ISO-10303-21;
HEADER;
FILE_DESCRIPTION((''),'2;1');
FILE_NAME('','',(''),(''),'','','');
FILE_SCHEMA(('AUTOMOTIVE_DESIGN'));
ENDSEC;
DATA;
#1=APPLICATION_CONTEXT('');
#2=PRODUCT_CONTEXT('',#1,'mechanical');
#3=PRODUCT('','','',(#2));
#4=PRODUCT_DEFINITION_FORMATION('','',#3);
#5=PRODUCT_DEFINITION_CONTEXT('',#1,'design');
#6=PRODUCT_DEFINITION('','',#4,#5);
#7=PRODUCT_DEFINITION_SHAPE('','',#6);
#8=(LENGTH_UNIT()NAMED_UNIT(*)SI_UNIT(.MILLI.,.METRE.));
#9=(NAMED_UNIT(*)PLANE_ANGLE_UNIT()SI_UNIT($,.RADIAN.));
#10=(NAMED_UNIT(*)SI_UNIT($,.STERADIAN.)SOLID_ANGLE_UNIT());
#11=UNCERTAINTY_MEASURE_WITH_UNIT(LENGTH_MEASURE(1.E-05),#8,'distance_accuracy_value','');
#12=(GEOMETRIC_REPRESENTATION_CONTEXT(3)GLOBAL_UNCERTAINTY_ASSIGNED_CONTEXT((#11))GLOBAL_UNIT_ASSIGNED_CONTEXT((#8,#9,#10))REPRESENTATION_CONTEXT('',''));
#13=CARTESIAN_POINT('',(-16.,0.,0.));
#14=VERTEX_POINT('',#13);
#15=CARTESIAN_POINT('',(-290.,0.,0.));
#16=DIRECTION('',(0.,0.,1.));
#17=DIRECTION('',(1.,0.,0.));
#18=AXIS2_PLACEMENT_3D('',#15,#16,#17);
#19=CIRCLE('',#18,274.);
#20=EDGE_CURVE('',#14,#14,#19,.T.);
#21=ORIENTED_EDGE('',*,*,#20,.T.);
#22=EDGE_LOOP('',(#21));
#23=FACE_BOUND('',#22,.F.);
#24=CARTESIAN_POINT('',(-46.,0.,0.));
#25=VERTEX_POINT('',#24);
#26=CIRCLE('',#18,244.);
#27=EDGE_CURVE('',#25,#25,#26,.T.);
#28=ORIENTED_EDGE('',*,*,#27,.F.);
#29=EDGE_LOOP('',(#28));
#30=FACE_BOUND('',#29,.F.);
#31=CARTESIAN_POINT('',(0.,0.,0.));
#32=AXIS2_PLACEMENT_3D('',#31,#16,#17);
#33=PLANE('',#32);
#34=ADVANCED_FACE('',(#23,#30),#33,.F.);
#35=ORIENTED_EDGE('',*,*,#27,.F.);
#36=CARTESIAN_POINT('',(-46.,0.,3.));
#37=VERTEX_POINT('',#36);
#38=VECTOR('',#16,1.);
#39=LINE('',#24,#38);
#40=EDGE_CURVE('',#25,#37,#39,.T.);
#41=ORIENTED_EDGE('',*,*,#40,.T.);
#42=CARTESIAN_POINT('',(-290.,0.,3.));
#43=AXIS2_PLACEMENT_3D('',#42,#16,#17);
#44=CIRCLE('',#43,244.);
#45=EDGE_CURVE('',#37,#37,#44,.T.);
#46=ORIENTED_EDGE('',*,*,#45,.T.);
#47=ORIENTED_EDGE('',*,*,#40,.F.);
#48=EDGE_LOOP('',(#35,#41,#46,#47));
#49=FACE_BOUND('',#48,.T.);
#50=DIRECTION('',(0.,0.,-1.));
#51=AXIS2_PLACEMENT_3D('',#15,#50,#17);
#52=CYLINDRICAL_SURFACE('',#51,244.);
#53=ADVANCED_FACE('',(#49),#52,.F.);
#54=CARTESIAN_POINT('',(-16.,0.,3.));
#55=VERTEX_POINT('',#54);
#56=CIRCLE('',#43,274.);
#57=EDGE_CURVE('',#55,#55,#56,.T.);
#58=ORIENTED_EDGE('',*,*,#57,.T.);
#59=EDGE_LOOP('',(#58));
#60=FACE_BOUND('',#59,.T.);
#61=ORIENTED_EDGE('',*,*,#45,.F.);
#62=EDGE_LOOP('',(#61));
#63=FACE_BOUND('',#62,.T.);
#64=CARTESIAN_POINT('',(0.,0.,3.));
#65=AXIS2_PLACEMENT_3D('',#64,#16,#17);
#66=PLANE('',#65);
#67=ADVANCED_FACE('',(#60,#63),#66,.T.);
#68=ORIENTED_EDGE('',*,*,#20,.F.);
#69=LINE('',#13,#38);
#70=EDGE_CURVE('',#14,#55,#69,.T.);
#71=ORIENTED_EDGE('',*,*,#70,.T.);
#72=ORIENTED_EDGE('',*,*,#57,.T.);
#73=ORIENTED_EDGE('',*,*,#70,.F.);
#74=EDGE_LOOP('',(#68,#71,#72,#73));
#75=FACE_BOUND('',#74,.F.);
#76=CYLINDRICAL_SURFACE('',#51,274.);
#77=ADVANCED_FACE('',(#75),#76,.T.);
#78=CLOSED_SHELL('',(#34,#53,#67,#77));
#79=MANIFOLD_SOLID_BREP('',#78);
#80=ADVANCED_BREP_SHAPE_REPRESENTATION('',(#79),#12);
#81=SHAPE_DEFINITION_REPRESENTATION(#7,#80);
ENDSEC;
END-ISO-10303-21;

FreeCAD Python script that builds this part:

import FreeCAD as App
import Part
import Sketcher

V = App.Vector
Q = App.Units.Quantity

doc = App.newDocument("Part")
params = doc.addObject("Spreadsheet::Sheet", "Params")
for row, (alias, value) in enumerate([
    ("sketch1_diameter", "548 mm"),
    ("sketch1_diameter2", "488 mm"),
    ("pad1_length", "3 mm"),
], start=1):
    params.set(f"A{row}", alias)
    params.set(f"B{row}", "=" + value)
    params.setAlias(f"B{row}", alias)

body = doc.addObject("PartDesign::Body", "Body")

# Sketch on XY plane
sketch1 = body.newObject("Sketcher::SketchObject", "Sketch")
sketch1.AttachmentSupport = (doc.getObject("XY_Plane"), [""])
sketch1.MapMode = "FlatFace"
sketch1.addGeometry(Part.Circle(V(-290, 0, 0), V(0, 0, 1), 274), False)
sketch1.addGeometry(Part.Circle(V(-290, 0, 0), V(0, 0, 1), 244), False)
sketch1.addConstraint(Sketcher.Constraint("Coincident", 1, 3, 0, 3))
sketch1.addConstraint(Sketcher.Constraint("PointOnObject", 0, 3, -1))
sketch1.addConstraint(Sketcher.Constraint("Diameter", 0, Q("548 mm")))
sketch1.addConstraint(Sketcher.Constraint("Diameter", 1, Q("488 mm")))
sketch1.addConstraint(Sketcher.Constraint("DistanceX", 0, 3, -1, 1, Q("290 mm")))
sketch1.setExpression("Constraints[2]", "Params.sketch1_diameter")
sketch1.setExpression("Constraints[3]", "Params.sketch1_diameter2")
pad1 = body.newObject("PartDesign::Pad", "Pad")
pad1.Profile = sketch1
pad1.setExpression("Length", "Params.pad1_length")

doc.recompute()
